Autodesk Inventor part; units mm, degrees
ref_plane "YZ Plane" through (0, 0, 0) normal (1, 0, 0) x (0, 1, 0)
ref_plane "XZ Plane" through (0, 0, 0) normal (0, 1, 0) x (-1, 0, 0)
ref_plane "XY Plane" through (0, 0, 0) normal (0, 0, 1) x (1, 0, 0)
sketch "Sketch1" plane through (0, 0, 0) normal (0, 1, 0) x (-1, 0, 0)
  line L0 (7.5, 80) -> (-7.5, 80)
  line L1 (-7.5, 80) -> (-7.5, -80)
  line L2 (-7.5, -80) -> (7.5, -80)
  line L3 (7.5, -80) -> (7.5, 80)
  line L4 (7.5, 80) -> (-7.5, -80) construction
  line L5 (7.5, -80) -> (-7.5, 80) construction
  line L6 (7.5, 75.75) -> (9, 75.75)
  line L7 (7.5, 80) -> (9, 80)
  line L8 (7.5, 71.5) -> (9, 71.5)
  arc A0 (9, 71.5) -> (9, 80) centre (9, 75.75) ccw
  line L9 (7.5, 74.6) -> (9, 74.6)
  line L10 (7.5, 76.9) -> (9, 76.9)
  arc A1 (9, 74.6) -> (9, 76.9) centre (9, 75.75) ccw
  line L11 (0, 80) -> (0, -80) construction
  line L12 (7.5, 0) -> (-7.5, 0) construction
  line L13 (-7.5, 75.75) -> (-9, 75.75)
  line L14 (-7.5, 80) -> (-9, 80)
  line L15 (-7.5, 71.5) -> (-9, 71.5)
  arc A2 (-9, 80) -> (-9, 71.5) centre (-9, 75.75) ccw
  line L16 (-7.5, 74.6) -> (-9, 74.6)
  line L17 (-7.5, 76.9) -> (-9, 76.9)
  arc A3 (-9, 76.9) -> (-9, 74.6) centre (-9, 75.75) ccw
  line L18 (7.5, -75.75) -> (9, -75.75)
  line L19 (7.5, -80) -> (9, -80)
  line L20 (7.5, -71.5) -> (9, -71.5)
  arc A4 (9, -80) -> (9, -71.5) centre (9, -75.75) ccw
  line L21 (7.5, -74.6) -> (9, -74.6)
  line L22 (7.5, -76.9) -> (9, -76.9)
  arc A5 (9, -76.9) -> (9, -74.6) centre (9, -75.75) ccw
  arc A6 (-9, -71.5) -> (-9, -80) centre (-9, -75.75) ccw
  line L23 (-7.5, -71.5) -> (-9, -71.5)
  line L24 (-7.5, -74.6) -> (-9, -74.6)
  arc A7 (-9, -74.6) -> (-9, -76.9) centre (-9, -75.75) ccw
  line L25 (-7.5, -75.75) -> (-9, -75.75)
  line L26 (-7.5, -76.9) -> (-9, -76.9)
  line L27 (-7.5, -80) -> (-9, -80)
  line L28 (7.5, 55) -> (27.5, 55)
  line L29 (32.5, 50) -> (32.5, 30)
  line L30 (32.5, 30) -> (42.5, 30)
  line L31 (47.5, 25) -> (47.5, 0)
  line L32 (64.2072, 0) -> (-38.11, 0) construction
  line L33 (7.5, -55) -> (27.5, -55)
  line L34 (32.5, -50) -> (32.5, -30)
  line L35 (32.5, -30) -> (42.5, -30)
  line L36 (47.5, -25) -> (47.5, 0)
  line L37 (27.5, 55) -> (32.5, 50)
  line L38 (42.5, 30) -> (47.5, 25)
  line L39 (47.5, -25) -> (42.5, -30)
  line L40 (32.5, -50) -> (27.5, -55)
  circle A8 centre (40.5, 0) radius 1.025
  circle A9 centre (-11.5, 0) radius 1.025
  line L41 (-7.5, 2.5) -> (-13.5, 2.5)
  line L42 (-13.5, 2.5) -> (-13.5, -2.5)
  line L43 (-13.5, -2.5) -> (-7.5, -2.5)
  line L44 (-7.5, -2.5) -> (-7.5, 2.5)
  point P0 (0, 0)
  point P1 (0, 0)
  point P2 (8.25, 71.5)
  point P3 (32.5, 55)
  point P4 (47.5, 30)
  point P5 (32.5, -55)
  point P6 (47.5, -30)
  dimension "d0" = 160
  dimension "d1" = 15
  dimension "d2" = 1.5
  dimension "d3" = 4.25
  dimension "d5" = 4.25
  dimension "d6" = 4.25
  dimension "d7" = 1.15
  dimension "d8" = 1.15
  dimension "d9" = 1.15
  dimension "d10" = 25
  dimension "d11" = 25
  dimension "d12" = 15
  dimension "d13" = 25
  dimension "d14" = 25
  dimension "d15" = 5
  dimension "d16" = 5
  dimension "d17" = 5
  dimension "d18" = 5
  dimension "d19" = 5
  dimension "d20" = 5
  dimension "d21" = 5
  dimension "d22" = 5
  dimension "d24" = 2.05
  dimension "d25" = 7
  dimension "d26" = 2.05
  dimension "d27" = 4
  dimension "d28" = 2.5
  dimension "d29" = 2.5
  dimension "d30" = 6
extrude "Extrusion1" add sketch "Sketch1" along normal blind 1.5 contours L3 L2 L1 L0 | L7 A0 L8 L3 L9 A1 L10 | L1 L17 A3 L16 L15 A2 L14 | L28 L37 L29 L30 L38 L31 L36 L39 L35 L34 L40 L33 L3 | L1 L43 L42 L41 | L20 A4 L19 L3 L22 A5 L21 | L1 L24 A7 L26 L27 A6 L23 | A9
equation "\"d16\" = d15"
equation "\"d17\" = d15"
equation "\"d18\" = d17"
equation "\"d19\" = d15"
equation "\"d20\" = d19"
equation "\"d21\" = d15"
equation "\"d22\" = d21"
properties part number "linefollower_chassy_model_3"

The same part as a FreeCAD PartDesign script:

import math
import FreeCAD as App
import Part
import Sketcher
Q = App.Units.Quantity

doc = App.newDocument("Part")
body = doc.addObject("PartDesign::Body", "Body")

# Sketch on XZ plane
sketch1 = doc.addObject("Sketcher::SketchObject", "Sketch")
body.addObject(sketch1)
sketch1.AttachmentSupport = (doc.XZ_Plane, [""])
sketch1.MapMode = "FlatFace"
sketch1.addGeometry([
    Part.LineSegment(App.Vector(-7.5, 55, 0), App.Vector(-7.5, 71.5, 0)),  # 0
    Part.LineSegment(App.Vector(-7.5, 71.5, 0), App.Vector(-9, 71.5, 0)),  # 1
    Part.ArcOfCircle(Part.Circle(App.Vector(-9, 75.8, 0), App.Vector(0, 0, 1), 4.2), math.radians(90), math.radians(270)),  # 2
    Part.LineSegment(App.Vector(-9, 80, 0), App.Vector(9, 80, 0)),  # 3
    Part.ArcOfCircle(Part.Circle(App.Vector(9, 75.8, 0), App.Vector(0, 0, 1), 4.2), math.radians(-90), math.radians(90)),  # 4
    Part.LineSegment(App.Vector(9, 71.5, 0), App.Vector(7.5, 71.5, 0)),  # 5
    Part.LineSegment(App.Vector(7.5, 71.5, 0), App.Vector(7.5, 2.5, 0)),  # 6
    Part.LineSegment(App.Vector(7.5, 2.5, 0), App.Vector(13.5, 2.5, 0)),  # 7
    Part.LineSegment(App.Vector(13.5, 2.5, 0), App.Vector(13.5, -2.5, 0)),  # 8
    Part.LineSegment(App.Vector(13.5, -2.5, 0), App.Vector(7.5, -2.5, 0)),  # 9
    Part.LineSegment(App.Vector(7.5, -2.5, 0), App.Vector(7.5, -71.5, 0)),  # 10
    Part.LineSegment(App.Vector(7.5, -71.5, 0), App.Vector(9, -71.5, 0)),  # 11
    Part.ArcOfCircle(Part.Circle(App.Vector(9, -75.8, 0), App.Vector(0, 0, 1), 4.2), math.radians(-90), math.radians(90)),  # 12
    Part.LineSegment(App.Vector(9, -80, 0), App.Vector(-9, -80, 0)),  # 13
    Part.ArcOfCircle(Part.Circle(App.Vector(-9, -75.8, 0), App.Vector(0, 0, 1), 4.2), math.radians(90), math.radians(270)),  # 14
    Part.LineSegment(App.Vector(-9, -71.5, 0), App.Vector(-7.5, -71.5, 0)),  # 15
    Part.LineSegment(App.Vector(-7.5, -71.5, 0), App.Vector(-7.5, -55, 0)),  # 16
    Part.LineSegment(App.Vector(-7.5, -55, 0), App.Vector(-27.5, -55, 0)),  # 17
    Part.LineSegment(App.Vector(-27.5, -55, 0), App.Vector(-32.5, -50, 0)),  # 18
    Part.LineSegment(App.Vector(-32.5, -50, 0), App.Vector(-32.5, -30, 0)),  # 19
    Part.LineSegment(App.Vector(-32.5, -30, 0), App.Vector(-42.5, -30, 0)),  # 20
    Part.LineSegment(App.Vector(-42.5, -30, 0), App.Vector(-47.5, -25, 0)),  # 21
    Part.LineSegment(App.Vector(-47.5, -25, 0), App.Vector(-47.5, 25, 0)),  # 22
    Part.LineSegment(App.Vector(-47.5, 25, 0), App.Vector(-42.5, 30, 0)),  # 23
    Part.LineSegment(App.Vector(-42.5, 30, 0), App.Vector(-32.5, 30, 0)),  # 24
    Part.LineSegment(App.Vector(-32.5, 30, 0), App.Vector(-32.5, 50, 0)),  # 25
    Part.LineSegment(App.Vector(-32.5, 50, 0), App.Vector(-27.5, 55, 0)),  # 26
    Part.LineSegment(App.Vector(-27.5, 55, 0), App.Vector(-7.5, 55, 0)),  # 27
    Part.LineSegment(App.Vector(-7.5, 76.9, 0), App.Vector(-9, 76.9, 0)),  # 28
    Part.ArcOfCircle(Part.Circle(App.Vector(-9, 75.8, 0), App.Vector(0, 0, 1), 1.2), math.radians(90), math.radians(270)),  # 29
    Part.LineSegment(App.Vector(-9, 74.6, 0), App.Vector(-7.5, 74.6, 0)),  # 30
    Part.LineSegment(App.Vector(-7.5, 74.6, 0), App.Vector(-7.5, 76.9, 0)),  # 31
    Part.LineSegment(App.Vector(-7.5, -74.6, 0), App.Vector(-9, -74.6, 0)),  # 32
    Part.ArcOfCircle(Part.Circle(App.Vector(-9, -75.8, 0), App.Vector(0, 0, 1), 1.2), math.radians(90), math.radians(270)),  # 33
    Part.LineSegment(App.Vector(-9, -76.9, 0), App.Vector(-7.5, -76.9, 0)),  # 34
    Part.LineSegment(App.Vector(-7.5, -76.9, 0), App.Vector(-7.5, -74.6, 0)),  # 35
    Part.LineSegment(App.Vector(7.5, -76.9, 0), App.Vector(9, -76.9, 0)),  # 36
    Part.ArcOfCircle(Part.Circle(App.Vector(9, -75.8, 0), App.Vector(0, 0, 1), 1.2), math.radians(-90), math.radians(90)),  # 37
    Part.LineSegment(App.Vector(9, -74.6, 0), App.Vector(7.5, -74.6, 0)),  # 38
    Part.LineSegment(App.Vector(7.5, -74.6, 0), App.Vector(7.5, -76.9, 0)),  # 39
    Part.LineSegment(App.Vector(7.5, 74.6, 0), App.Vector(9, 74.6, 0)),  # 40
    Part.ArcOfCircle(Part.Circle(App.Vector(9, 75.8, 0), App.Vector(0, 0, 1), 1.2), math.radians(-90), math.radians(90)),  # 41
    Part.LineSegment(App.Vector(9, 76.9, 0), App.Vector(7.5, 76.9, 0)),  # 42
    Part.LineSegment(App.Vector(7.5, 76.9, 0), App.Vector(7.5, 74.6, 0)),  # 43
    Part.Circle(App.Vector(-40.5, 0, 0), App.Vector(0, 0, 1), 1),  # 44
], False)
sketch1.addConstraint([
    Sketcher.Constraint("Coincident", 0, 2, 1, 1),
    Sketcher.Constraint("Tangent", 1, 2, 2, 2),
    Sketcher.Constraint("Tangent", 2, 1, 3, 1),
    Sketcher.Constraint("Tangent", 3, 2, 4, 2),
    Sketcher.Constraint("Tangent", 4, 1, 5, 1),
    Sketcher.Constraint("Coincident", 5, 2, 6, 1),
    Sketcher.Constraint("Coincident", 6, 2, 7, 1),
    Sketcher.Constraint("Coincident", 7, 2, 8, 1),
    Sketcher.Constraint("Coincident", 8, 2, 9, 1),
    Sketcher.Constraint("Coincident", 9, 2, 10, 1),
    Sketcher.Constraint("Coincident", 10, 2, 11, 1),
    Sketcher.Constraint("Tangent", 11, 2, 12, 2),
    Sketcher.Constraint("Tangent", 12, 1, 13, 1),
    Sketcher.Constraint("Tangent", 13, 2, 14, 2),
    Sketcher.Constraint("Tangent", 14, 1, 15, 1),
    Sketcher.Constraint("Coincident", 15, 2, 16, 1),
    Sketcher.Constraint("Coincident", 16, 2, 17, 1),
    Sketcher.Constraint("Coincident", 17, 2, 18, 1),
    Sketcher.Constraint("Coincident", 18, 2, 19, 1),
    Sketcher.Constraint("Coincident", 19, 2, 20, 1),
    Sketcher.Constraint("Coincident", 20, 2, 21, 1),
    Sketcher.Constraint("Coincident", 21, 2, 22, 1),
    Sketcher.Constraint("Coincident", 22, 2, 23, 1),
    Sketcher.Constraint("Coincident", 23, 2, 24, 1),
    Sketcher.Constraint("Coincident", 24, 2, 25, 1),
    Sketcher.Constraint("Coincident", 25, 2, 26, 1),
    Sketcher.Constraint("Coincident", 26, 2, 27, 1),
    Sketcher.Constraint("Coincident", 27, 2, 0, 1),
    Sketcher.Constraint("Tangent", 28, 2, 29, 1),
    Sketcher.Constraint("Tangent", 29, 2, 30, 1),
    Sketcher.Constraint("Coincident", 30, 2, 31, 1),
    Sketcher.Constraint("Coincident", 31, 2, 28, 1),
    Sketcher.Constraint("Tangent", 32, 2, 33, 1),
    Sketcher.Constraint("Tangent", 33, 2, 34, 1),
    Sketcher.Constraint("Coincident", 34, 2, 35, 1),
    Sketcher.Constraint("Coincident", 35, 2, 32, 1),
    Sketcher.Constraint("Tangent", 36, 2, 37, 1),
    Sketcher.Constraint("Tangent", 37, 2, 38, 1),
    Sketcher.Constraint("Coincident", 38, 2, 39, 1),
    Sketcher.Constraint("Coincident", 39, 2, 36, 1),
    Sketcher.Constraint("Tangent", 40, 2, 41, 1),
    Sketcher.Constraint("Tangent", 41, 2, 42, 1),
    Sketcher.Constraint("Coincident", 42, 2, 43, 1),
    Sketcher.Constraint("Coincident", 43, 2, 40, 1),
    Sketcher.Constraint("Vertical", 0),
    Sketcher.Constraint("Horizontal", 1),
    Sketcher.Constraint("Horizontal", 3),
    Sketcher.Constraint("Horizontal", 5),
    Sketcher.Constraint("Vertical", 6),
    Sketcher.Constraint("Horizontal", 7),
    Sketcher.Constraint("Vertical", 8),
    Sketcher.Constraint("Horizontal", 9),
    Sketcher.Constraint("Vertical", 10),
    Sketcher.Constraint("Horizontal", 11),
    Sketcher.Constraint("Horizontal", 13),
    Sketcher.Constraint("Horizontal", 15),
    Sketcher.Constraint("Vertical", 16),
    Sketcher.Constraint("Horizontal", 17),
    Sketcher.Constraint("Vertical", 19),
    Sketcher.Constraint("Horizontal", 20),
    Sketcher.Constraint("Vertical", 22),
    Sketcher.Constraint("Horizontal", 24),
    Sketcher.Constraint("Vertical", 25),
    Sketcher.Constraint("Horizontal", 27),
    Sketcher.Constraint("Horizontal", 28),
    Sketcher.Constraint("Horizontal", 30),
    Sketcher.Constraint("Vertical", 31),
    Sketcher.Constraint("Horizontal", 32),
    Sketcher.Constraint("Horizontal", 34),
    Sketcher.Constraint("Vertical", 35),
    Sketcher.Constraint("Horizontal", 36),
    Sketcher.Constraint("Horizontal", 38),
    Sketcher.Constraint("Vertical", 39),
    Sketcher.Constraint("Horizontal", 40),
    Sketcher.Constraint("Horizontal", 42),
    Sketcher.Constraint("Vertical", 43),
    Sketcher.Constraint("Coincident", 29, 3, 2, 3),
    Sketcher.Constraint("Coincident", 33, 3, 14, 3),
    Sketcher.Constraint("Coincident", 37, 3, 12, 3),
    Sketcher.Constraint("Coincident", 41, 3, 4, 3),
    Sketcher.Constraint("Equal", 2, 4),
    Sketcher.Constraint("Equal", 4, 12),
    Sketcher.Constraint("Equal", 12, 14),
    Sketcher.Constraint("Equal", 29, 33),
    Sketcher.Constraint("Equal", 33, 37),
    Sketcher.Constraint("Equal", 37, 41),
    Sketcher.Constraint("Symmetric", 2, 3, 12, 3, -1, 1),
    Sketcher.Constraint("Symmetric", 6, 2, 9, 2, -1),
    Sketcher.Constraint("Symmetric", 20, 2, 23, 2, -1),
    Sketcher.Constraint("Symmetric", 18, 2, 25, 2, -1),
    Sketcher.Constraint("Symmetric", 17, 2, 26, 2, -1),
    Sketcher.Constraint("PointOnObject", 44, 3, -1),
    Sketcher.Constraint("Parallel", 18, 21),
    Sketcher.Constraint("Perpendicular", 21, 23),
    Sketcher.Constraint("Parallel", 23, 26),
    Sketcher.Constraint("Vertical", 4, 3, 12, 3),
    Sketcher.Constraint("Vertical", 2, 3, 14, 3),
    Sketcher.Constraint("Vertical", 0, 2, 15, 2),
    Sketcher.Constraint("Vertical", 27, 2, 30, 2),
    Sketcher.Constraint("Vertical", 31, 2, 34, 2),
    Sketcher.Constraint("Vertical", 10, 2, 38, 2),
    Sketcher.Constraint("Vertical", 39, 2, 42, 2),
    Sketcher.Constraint("Equal", 1, 5),
    Sketcher.Constraint("Equal", 27, 19),
    Sketcher.Constraint("Equal", 18, 21),
    Sketcher.Constraint("Diameter", 44, Q("2.05 mm")),
    Sketcher.Constraint("DistanceX", 7, 1, 7, 2, Q("6 mm")),
    Sketcher.Constraint("DistanceY", 8, 2, 8, 1, Q("5 mm")),
    Sketcher.Constraint("Radius", 2, Q("4.25 mm")),
    Sketcher.Constraint("Radius", 29, Q("1.15 mm")),
    Sketcher.Constraint("DistanceX", 1, 2, 1, 1, Q("1.5 mm")),
    Sketcher.Constraint("DistanceY", 21, 2, -1, 1, Q("25 mm")),
    Sketcher.Constraint("DistanceX", 0, 2, 5, 2, Q("15 mm")),
    Sketcher.Constraint("DistanceX", 18, 2, 17, 2, Q("5 mm")),
    Sketcher.Constraint("DistanceX", 18, 2, 16, 2, Q("25 mm")),
    Sketcher.Constraint("DistanceX", 20, 2, 17, 2, Q("15 mm")),
    Sketcher.Constraint("DistanceX", 21, 2, 44, 3, Q("7 mm")),
    Sketcher.Constraint("DistanceY", 6, 2, 6, 1, Q("69 mm")),
])
pad1 = doc.addObject("PartDesign::Pad", "Pad")
body.addObject(pad1)
pad1.Profile = sketch1
pad1.Length = 1.5
pad1.Reversed = True

doc.recompute()
